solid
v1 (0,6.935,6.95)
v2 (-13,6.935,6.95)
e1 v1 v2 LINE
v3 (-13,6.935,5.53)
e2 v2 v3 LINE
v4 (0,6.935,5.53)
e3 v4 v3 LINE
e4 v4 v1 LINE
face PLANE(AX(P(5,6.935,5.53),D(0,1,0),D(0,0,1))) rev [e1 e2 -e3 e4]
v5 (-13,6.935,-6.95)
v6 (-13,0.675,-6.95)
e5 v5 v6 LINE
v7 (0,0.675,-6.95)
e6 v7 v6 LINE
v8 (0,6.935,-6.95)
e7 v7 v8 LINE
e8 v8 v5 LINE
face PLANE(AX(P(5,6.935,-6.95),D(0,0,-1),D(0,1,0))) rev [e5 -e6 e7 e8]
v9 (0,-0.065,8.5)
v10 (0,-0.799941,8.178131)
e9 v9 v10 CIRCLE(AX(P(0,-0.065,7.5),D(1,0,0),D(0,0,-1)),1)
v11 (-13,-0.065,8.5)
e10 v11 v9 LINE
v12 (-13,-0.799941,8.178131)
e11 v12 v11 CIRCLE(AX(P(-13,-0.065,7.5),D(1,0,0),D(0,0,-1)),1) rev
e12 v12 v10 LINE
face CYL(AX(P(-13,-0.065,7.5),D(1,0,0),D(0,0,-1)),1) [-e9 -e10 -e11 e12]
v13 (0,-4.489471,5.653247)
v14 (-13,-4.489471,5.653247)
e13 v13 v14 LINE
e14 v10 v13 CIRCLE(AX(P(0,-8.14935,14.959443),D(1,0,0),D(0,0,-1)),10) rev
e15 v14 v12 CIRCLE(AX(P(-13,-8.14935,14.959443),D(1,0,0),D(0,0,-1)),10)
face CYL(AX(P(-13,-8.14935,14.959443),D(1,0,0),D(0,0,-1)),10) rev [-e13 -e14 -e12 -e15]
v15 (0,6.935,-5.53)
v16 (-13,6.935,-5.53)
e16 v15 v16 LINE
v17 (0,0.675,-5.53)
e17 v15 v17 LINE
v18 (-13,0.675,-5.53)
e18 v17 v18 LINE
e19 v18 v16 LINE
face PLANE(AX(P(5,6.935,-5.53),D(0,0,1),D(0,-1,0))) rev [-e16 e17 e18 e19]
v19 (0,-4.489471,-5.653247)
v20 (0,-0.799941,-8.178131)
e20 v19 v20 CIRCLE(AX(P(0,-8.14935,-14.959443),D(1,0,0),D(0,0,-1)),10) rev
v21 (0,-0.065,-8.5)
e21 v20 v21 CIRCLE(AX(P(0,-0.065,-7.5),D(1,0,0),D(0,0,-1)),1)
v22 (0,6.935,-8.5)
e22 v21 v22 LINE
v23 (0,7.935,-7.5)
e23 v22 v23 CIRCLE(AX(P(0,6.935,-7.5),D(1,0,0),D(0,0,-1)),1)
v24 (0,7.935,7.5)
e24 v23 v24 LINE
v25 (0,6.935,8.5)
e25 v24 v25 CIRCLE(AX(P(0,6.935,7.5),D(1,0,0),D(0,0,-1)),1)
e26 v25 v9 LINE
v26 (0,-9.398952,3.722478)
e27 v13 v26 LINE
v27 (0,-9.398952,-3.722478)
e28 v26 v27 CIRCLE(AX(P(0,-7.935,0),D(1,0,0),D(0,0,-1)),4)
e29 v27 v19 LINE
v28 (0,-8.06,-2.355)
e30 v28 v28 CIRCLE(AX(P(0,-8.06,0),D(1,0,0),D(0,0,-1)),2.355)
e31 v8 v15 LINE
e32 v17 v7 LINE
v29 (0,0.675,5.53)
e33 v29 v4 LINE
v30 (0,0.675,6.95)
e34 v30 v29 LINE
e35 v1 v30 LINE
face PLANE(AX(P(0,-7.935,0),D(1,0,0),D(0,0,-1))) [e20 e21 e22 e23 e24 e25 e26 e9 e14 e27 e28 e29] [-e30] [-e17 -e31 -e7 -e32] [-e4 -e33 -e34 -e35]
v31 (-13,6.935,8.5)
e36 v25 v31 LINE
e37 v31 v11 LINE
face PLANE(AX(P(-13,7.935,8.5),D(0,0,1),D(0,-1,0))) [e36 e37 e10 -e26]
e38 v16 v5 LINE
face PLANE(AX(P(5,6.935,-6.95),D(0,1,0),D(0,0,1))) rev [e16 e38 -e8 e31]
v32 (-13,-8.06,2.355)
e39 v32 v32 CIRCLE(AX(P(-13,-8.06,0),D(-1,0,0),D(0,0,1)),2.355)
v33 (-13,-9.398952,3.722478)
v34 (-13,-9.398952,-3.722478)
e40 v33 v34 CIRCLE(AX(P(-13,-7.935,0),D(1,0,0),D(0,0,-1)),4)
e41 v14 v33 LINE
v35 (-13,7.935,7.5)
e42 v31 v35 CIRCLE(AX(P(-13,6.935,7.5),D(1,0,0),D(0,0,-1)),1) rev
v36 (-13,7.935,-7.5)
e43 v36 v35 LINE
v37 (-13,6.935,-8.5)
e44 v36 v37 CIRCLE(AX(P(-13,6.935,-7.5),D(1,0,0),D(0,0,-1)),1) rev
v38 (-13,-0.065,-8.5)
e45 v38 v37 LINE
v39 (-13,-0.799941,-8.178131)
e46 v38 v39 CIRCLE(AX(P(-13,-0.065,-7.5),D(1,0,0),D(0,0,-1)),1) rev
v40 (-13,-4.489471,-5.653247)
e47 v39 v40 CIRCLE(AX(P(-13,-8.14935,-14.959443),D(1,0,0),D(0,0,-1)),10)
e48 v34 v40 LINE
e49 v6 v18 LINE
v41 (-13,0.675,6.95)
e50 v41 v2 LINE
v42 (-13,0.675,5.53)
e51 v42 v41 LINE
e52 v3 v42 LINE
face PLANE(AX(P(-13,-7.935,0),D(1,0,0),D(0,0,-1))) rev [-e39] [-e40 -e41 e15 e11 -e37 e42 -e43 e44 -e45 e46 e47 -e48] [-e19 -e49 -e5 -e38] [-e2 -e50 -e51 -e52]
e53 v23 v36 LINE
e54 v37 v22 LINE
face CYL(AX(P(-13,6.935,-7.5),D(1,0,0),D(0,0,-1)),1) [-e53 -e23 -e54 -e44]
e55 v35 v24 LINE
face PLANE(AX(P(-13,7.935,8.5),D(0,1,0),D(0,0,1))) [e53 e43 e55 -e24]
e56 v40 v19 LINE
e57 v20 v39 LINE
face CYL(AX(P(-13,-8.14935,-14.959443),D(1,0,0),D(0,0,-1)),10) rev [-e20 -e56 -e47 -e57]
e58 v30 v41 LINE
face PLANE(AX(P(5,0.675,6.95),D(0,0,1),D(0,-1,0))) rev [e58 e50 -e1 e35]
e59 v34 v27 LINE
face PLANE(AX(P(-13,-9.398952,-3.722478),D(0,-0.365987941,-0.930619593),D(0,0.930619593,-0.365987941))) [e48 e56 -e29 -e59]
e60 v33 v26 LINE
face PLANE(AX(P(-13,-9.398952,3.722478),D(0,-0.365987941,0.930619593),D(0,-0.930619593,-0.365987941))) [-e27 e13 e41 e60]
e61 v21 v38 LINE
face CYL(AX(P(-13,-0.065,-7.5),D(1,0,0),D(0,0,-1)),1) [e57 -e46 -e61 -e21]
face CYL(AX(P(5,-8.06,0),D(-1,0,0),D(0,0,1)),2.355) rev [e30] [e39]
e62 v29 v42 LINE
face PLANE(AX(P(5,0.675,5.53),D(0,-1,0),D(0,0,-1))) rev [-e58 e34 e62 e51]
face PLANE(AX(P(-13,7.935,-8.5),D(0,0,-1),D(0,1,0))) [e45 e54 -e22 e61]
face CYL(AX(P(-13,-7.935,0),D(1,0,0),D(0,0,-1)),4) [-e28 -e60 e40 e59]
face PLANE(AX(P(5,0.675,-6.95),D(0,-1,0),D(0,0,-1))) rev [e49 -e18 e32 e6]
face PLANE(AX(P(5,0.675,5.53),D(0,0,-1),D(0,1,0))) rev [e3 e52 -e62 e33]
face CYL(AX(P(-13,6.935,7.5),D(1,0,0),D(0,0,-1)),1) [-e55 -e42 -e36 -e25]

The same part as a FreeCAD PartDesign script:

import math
import FreeCAD as App
import Part
import Sketcher


def edges_at(feature, points):
    """Names of the edges that pass closest to the given points."""
    edges = feature.Shape.Edges
    near = lambda p: min(range(len(edges)), key=lambda i: edges[i].distToShape(Part.Vertex(*p))[0])
    return sorted({f"Edge{near(p) + 1}" for p in points})


def add_polygon(sketch, points):
    """Adds a closed chain of lines whose ends are joined by coincident constraints."""
    first, n = sketch.GeometryCount, len(points)
    for a, b in zip(points, points[1:] + points[:1]):
        sketch.addGeometry(Part.LineSegment(App.Vector(*a, 0), App.Vector(*b, 0)), False)
    for i in range(n):
        sketch.addConstraint(Sketcher.Constraint("Coincident", first + i, 2, first + (i + 1) % n, 1))

doc = App.newDocument("Part")
body = doc.addObject("PartDesign::Body", "Body")

# Sketch on YZ plane
sketch1 = body.newObject("Sketcher::SketchObject", "Sketch")
sketch1.AttachmentSupport = (doc.getObject("YZ_Plane"), [""])
sketch1.MapMode = "FlatFace"
sketch1.addGeometry([
    Part.LineSegment(App.Vector(7.935, -8.5, 0), App.Vector(7.935, 8.5, 0)),  # 0
    Part.LineSegment(App.Vector(7.935, 8.5, 0), App.Vector(-1.065, 8.5, 0)),  # 1
    Part.LineSegment(App.Vector(-1.065, 8.5, 0), App.Vector(-1.065, 7, 0)),  # 2
    Part.LineSegment(App.Vector(-1.065, 7, 0), App.Vector(-9.398952, 3.722478, 0)),  # 3
    Part.ArcOfCircle(Part.Circle(App.Vector(-7.935, 0, 0), App.Vector(0, 0, 1), 4), math.radians(111.468395), math.radians(248.531605)),  # 4
    Part.LineSegment(App.Vector(-9.398952, -3.722478, 0), App.Vector(-1.065, -7, 0)),  # 5
    Part.LineSegment(App.Vector(-1.065, -7, 0), App.Vector(-1.065, -8.5, 0)),  # 6
    Part.LineSegment(App.Vector(-1.065, -8.5, 0), App.Vector(7.935, -8.5, 0)),  # 7
], False)
sketch1.addConstraint([
    Sketcher.Constraint("Coincident", 0, 2, 1, 1),
    Sketcher.Constraint("Coincident", 1, 2, 2, 1),
    Sketcher.Constraint("Coincident", 2, 2, 3, 1),
    Sketcher.Constraint("Tangent", 3, 2, 4, 1),
    Sketcher.Constraint("Tangent", 4, 2, 5, 1),
    Sketcher.Constraint("Coincident", 5, 2, 6, 1),
    Sketcher.Constraint("Coincident", 6, 2, 7, 1),
    Sketcher.Constraint("Coincident", 7, 2, 0, 1),
    Sketcher.Constraint("Vertical", 0),
    Sketcher.Constraint("Horizontal", 1),
    Sketcher.Constraint("Vertical", 2),
    Sketcher.Constraint("Vertical", 6),
    Sketcher.Constraint("Horizontal", 7),
    Sketcher.Constraint("Symmetric", 3, 2, 4, 2, -1),
    Sketcher.Constraint("Symmetric", 1, 2, 6, 2, -1),
    Sketcher.Constraint("Radius", 4, 4.0),
    Sketcher.Constraint("DistanceX", 1, 2, 1, 1, 9.0),
    Sketcher.Constraint("DistanceY", 0, 1, 0, 2, 17.0),
    Sketcher.Constraint("DistanceY", 2, 2, 2, 1, 1.5),
    Sketcher.Constraint("DistanceX", 4, 3, 0, 2, 15.87),
    Sketcher.Constraint("DistanceX", 4, 3, -1, 1, 7.935),
])
pad1 = body.newObject("PartDesign::Pad", "Pad")
pad1.Profile = sketch1
pad1.Length = 13
pad1.Reversed = True
doc.recompute()

fillet = body.newObject("PartDesign::Fillet", "Fillet")
fillet.Base = (pad1, edges_at(pad1, [
    (-6.5, 7.935, 8.5),
    (-6.5, 7.935, -8.5),
    (-6.5, -1.065, -8.5),
    (-6.5, -1.065, 8.5),
]))
fillet.Radius = 1
doc.recompute()

fillet2 = body.newObject("PartDesign::Fillet", "Fillet001")
fillet2.Base = (fillet, edges_at(fillet, [(-6.5, -1.065, -7), (-6.5, -1.065, 7)]))
fillet2.Radius = 10

# Sketch on YZ plane
sketch2 = body.newObject("Sketcher::SketchObject", "Sketch001")
sketch2.AttachmentSupport = (doc.getObject("YZ_Plane"), [""])
sketch2.MapMode = "FlatFace"
sketch2.AttachmentOffset = App.Placement(App.Vector(0, 0, -13), App.Rotation())
sketch2.addGeometry(Part.Circle(App.Vector(-8.06, 0, 0), App.Vector(0, 0, 1), 2.355), False)  # 0
add_polygon(sketch2, [(6.935, 5.53), (0.675, 5.53), (0.675, 6.95), (6.935, 6.95)])  # lines 1-4
add_polygon(sketch2, [(6.935, -6.95), (0.675, -6.95), (0.675, -5.53), (6.935, -5.53)])  # lines 5-8
sketch2.addConstraint([
    Sketcher.Constraint("Horizontal", 1),
    Sketcher.Constraint("Vertical", 2),
    Sketcher.Constraint("Horizontal", 3),
    Sketcher.Constraint("Vertical", 4),
    Sketcher.Constraint("Horizontal", 5),
    Sketcher.Constraint("Vertical", 6),
    Sketcher.Constraint("Horizontal", 7),
    Sketcher.Constraint("Vertical", 8),
    Sketcher.Constraint("Symmetric", 2, 2, 5, 2, -1),
    Sketcher.Constraint("Symmetric", 4, 2, 7, 2, -1),
    Sketcher.Constraint("PointOnObject", 0, 3, -1),
    Sketcher.Constraint("Diameter", 0, 4.71),
    Sketcher.Constraint("DistanceX", 1, 2, 1, 1, 6.26),
    Sketcher.Constraint("DistanceY", 2, 1, 2, 2, 1.42),
    Sketcher.Constraint("DistanceY", 5, 2, 2, 2, 13.9),
    Sketcher.Constraint("DistanceX", 0, 3, -1, 1, 8.06),
    Sketcher.Constraint("DistanceX", -1, 1, 1, 2, 0.675),
])
pocket1 = body.newObject("PartDesign::Pocket", "Pocket")
pocket1.Profile = sketch2
pocket1.Length = 18
pocket1.Reversed = True

doc.recompute()
